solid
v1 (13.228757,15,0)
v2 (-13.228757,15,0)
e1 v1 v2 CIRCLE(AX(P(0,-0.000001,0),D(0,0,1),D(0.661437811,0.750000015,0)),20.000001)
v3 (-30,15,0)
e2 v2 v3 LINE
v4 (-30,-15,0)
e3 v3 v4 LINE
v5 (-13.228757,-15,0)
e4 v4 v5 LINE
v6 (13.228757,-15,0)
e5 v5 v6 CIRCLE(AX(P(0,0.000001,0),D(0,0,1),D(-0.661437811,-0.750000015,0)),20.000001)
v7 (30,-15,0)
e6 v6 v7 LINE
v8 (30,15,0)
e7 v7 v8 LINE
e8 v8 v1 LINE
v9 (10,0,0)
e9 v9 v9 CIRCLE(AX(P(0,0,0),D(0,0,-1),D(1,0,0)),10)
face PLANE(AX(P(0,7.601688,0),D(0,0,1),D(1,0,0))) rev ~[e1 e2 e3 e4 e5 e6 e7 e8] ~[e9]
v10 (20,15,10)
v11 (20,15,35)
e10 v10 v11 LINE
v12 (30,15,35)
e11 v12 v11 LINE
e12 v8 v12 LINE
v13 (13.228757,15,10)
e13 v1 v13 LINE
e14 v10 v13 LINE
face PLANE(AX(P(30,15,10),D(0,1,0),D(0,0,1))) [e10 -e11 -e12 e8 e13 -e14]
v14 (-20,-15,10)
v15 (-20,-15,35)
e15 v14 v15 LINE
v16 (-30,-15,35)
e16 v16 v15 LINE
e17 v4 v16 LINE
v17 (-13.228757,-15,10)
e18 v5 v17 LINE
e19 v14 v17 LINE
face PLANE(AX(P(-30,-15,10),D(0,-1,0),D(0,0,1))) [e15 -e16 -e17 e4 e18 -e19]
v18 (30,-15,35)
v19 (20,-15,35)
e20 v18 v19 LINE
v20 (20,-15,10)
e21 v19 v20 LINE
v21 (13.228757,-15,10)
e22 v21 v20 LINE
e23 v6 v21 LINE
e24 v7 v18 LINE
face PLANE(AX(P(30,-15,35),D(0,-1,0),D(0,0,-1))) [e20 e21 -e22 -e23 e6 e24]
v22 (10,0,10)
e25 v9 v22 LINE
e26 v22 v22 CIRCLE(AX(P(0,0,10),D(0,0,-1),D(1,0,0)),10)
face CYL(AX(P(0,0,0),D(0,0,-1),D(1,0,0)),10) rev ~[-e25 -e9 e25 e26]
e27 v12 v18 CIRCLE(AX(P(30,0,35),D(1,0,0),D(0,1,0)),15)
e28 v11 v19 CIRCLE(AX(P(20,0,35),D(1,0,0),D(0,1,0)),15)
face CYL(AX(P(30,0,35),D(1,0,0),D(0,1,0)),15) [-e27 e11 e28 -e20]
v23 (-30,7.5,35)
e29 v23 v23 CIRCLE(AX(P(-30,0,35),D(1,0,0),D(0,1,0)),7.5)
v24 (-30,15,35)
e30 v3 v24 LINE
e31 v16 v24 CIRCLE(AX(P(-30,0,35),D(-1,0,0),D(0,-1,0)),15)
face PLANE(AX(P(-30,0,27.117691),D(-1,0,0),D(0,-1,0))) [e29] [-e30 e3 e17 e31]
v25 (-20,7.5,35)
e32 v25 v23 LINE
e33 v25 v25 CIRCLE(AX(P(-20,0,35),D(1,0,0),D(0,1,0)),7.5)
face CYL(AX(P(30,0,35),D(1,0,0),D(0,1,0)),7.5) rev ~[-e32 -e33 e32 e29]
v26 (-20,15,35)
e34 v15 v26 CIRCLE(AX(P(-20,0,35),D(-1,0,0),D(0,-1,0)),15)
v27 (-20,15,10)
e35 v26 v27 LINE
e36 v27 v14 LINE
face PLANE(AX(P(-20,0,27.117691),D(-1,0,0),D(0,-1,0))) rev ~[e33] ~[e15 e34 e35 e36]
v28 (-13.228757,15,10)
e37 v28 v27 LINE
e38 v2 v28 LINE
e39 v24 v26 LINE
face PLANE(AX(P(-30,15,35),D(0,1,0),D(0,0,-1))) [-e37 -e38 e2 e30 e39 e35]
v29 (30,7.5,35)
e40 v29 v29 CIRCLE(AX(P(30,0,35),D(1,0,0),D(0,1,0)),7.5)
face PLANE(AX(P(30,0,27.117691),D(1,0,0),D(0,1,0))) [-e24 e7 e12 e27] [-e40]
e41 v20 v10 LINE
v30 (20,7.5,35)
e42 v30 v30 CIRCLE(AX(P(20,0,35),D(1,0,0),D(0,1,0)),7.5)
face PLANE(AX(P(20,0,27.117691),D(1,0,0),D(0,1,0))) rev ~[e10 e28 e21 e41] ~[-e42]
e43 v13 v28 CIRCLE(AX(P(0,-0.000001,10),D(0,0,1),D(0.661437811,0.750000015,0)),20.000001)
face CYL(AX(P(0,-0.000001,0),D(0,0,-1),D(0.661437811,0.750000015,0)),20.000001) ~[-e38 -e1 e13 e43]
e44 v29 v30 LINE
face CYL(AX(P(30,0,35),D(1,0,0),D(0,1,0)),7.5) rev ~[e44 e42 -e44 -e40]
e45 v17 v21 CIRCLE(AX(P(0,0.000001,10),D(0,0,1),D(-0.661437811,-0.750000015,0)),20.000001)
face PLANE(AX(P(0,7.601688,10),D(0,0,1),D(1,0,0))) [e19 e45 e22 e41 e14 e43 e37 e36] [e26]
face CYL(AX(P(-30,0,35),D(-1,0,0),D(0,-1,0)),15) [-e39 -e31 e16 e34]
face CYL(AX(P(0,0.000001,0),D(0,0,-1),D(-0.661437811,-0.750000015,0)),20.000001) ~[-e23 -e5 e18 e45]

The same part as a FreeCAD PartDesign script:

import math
import FreeCAD as App
import Part
import Sketcher

V = App.Vector
Q = App.Units.Quantity

doc = App.newDocument("Part")
body = doc.addObject("PartDesign::Body", "Body")

# Sketch on XY plane
sketch1 = body.newObject("Sketcher::SketchObject", "Sketch")
sketch1.AttachmentSupport = (doc.getObject("XY_Plane"), [""])
sketch1.MapMode = "FlatFace"
sketch1.addGeometry([
    Part.LineSegment(V(13.228757, -15, 0), V(30, -15, 0)),  # 0
    Part.LineSegment(V(30, -15, 0), V(30, 15, 0)),  # 1
    Part.LineSegment(V(30, 15, 0), V(13.228757, 15, 0)),  # 2
    Part.ArcOfCircle(Part.Circle(V(0, -0.000001, 0), V(0, 0, 1), 20.000001), math.radians(48.590379), math.radians(131.409621)),  # 3
    Part.LineSegment(V(-13.228757, 15, 0), V(-30, 15, 0)),  # 4
    Part.LineSegment(V(-30, 15, 0), V(-30, -15, 0)),  # 5
    Part.LineSegment(V(-30, -15, 0), V(-13.228757, -15, 0)),  # 6
    Part.ArcOfCircle(Part.Circle(V(0, 0.000001, 0), V(0, 0, 1), 20.000001), math.radians(-131.409621), math.radians(-48.590379)),  # 7
    Part.Circle(V(0, 0, 0), V(0, 0, 1), 10),  # 8
], False)
sketch1.addConstraint([
    Sketcher.Constraint("Coincident", 0, 2, 1, 1),
    Sketcher.Constraint("Coincident", 1, 2, 2, 1),
    Sketcher.Constraint("Coincident", 2, 2, 3, 1),
    Sketcher.Constraint("Coincident", 3, 2, 4, 1),
    Sketcher.Constraint("Coincident", 4, 2, 5, 1),
    Sketcher.Constraint("Coincident", 5, 2, 6, 1),
    Sketcher.Constraint("Coincident", 6, 2, 7, 1),
    Sketcher.Constraint("Coincident", 7, 2, 0, 1),
    Sketcher.Constraint("Horizontal", 0),
    Sketcher.Constraint("Vertical", 1),
    Sketcher.Constraint("Horizontal", 2),
    Sketcher.Constraint("Horizontal", 4),
    Sketcher.Constraint("Vertical", 5),
    Sketcher.Constraint("Horizontal", 6),
    Sketcher.Constraint("Coincident", 3, 3, -1, 1),
    Sketcher.Constraint("Coincident", 7, 3, -1, 1),
    Sketcher.Constraint("Coincident", 8, 3, -1, 1),
    Sketcher.Constraint("Equal", 3, 7),
    Sketcher.Constraint("Symmetric", 0, 2, 4, 2, -1, 1),
    Sketcher.Constraint("Horizontal", 2, 2, 3, 2),
    Sketcher.Constraint("Horizontal", 0, 2, 5, 2),
    Sketcher.Constraint("Diameter", 8, Q("20 mm")),
    Sketcher.Constraint("Radius", 3, Q("20.000001 mm")),
    Sketcher.Constraint("DistanceY", 1, 1, 1, 2, Q("30 mm")),
    Sketcher.Constraint("DistanceX", -1, 1, 0, 2, Q("30 mm")),
])
pad1 = body.newObject("PartDesign::Pad", "Pad")
pad1.Profile = sketch1
pad1.Length = 10

# Sketch on YZ plane
sketch2 = body.newObject("Sketcher::SketchObject", "Sketch001")
sketch2.AttachmentSupport = (doc.getObject("YZ_Plane"), [""])
sketch2.MapMode = "FlatFace"
sketch2.AttachmentOffset = App.Placement(V(0, 0, 30), App.Rotation())
sketch2.addGeometry([
    Part.LineSegment(V(-15, 35, 0), V(-15, 10, 0)),
    Part.LineSegment(V(-15, 10, 0), V(15, 10, 0)),
    Part.LineSegment(V(15, 10, 0), V(15, 35, 0)),
    Part.ArcOfCircle(Part.Circle(V(0, 35, 0), V(0, 0, 1), 15), math.radians(0), math.radians(180)),
], False)
sketch2.addConstraint([
    Sketcher.Constraint("Coincident", 0, 2, 1, 1),
    Sketcher.Constraint("Coincident", 1, 2, 2, 1),
    Sketcher.Constraint("Tangent", 2, 2, 3, 1),
    Sketcher.Constraint("Tangent", 3, 2, 0, 1),
    Sketcher.Constraint("Vertical", 0),
    Sketcher.Constraint("Horizontal", 1),
    Sketcher.Constraint("Vertical", 2),
    Sketcher.Constraint("PointOnObject", 3, 3, -2),
    Sketcher.Constraint("Radius", 3, Q("15 mm")),
    Sketcher.Constraint("DistanceY", 0, 2, 0, 1, Q("25 mm")),
    Sketcher.Constraint("DistanceY", -1, 1, 3, 3, Q("35 mm")),
])
pad2 = body.newObject("PartDesign::Pad", "Pad001")
pad2.Profile = sketch2
pad2.Length = 10
pad2.Reversed = True

# Sketch on YZ plane
sketch3 = body.newObject("Sketcher::SketchObject", "Sketch002")
sketch3.AttachmentSupport = (doc.getObject("YZ_Plane"), [""])
sketch3.MapMode = "FlatFace"
sketch3.AttachmentOffset = App.Placement(V(0, 0, -30), App.Rotation())
sketch3.addGeometry([
    Part.LineSegment(V(15, 35, 0), V(15, 10, 0)),
    Part.LineSegment(V(15, 10, 0), V(-15, 10, 0)),
    Part.LineSegment(V(-15, 10, 0), V(-15, 35, 0)),
    Part.ArcOfCircle(Part.Circle(V(0, 35, 0), V(0, 0, 1), 15), math.radians(0), math.radians(180)),
], False)
sketch3.addConstraint([
    Sketcher.Constraint("Coincident", 0, 2, 1, 1),
    Sketcher.Constraint("Coincident", 1, 2, 2, 1),
    Sketcher.Constraint("Tangent", 2, 2, 3, 2),
    Sketcher.Constraint("Tangent", 3, 1, 0, 1),
    Sketcher.Constraint("Vertical", 0),
    Sketcher.Constraint("Horizontal", 1),
    Sketcher.Constraint("Vertical", 2),
    Sketcher.Constraint("PointOnObject", 3, 3, -2),
    Sketcher.Constraint("Radius", 3, Q("15 mm")),
    Sketcher.Constraint("DistanceY", 0, 2, 0, 1, Q("25 mm")),
    Sketcher.Constraint("DistanceY", -1, 1, 3, 3, Q("35 mm")),
])
pad3 = body.newObject("PartDesign::Pad", "Pad002")
pad3.Profile = sketch3
pad3.Length = 10

# Sketch on YZ plane
sketch4 = body.newObject("Sketcher::SketchObject", "Sketch003")
sketch4.AttachmentSupport = (doc.getObject("YZ_Plane"), [""])
sketch4.MapMode = "FlatFace"
sketch4.AttachmentOffset = App.Placement(V(0, 0, 30), App.Rotation())
sketch4.addGeometry(Part.Circle(V(0, 35, 0), V(0, 0, 1), 7.5), False)
sketch4.addConstraint([
    Sketcher.Constraint("PointOnObject", 0, 3, -2),
    Sketcher.Constraint("Diameter", 0, Q("15 mm")),
    Sketcher.Constraint("DistanceY", -1, 1, 0, 3, Q("35 mm")),
])
pocket1 = body.newObject("PartDesign::Pocket", "Pocket")
pocket1.Profile = sketch4
pocket1.Type = "ThroughAll"

doc.recompute()
